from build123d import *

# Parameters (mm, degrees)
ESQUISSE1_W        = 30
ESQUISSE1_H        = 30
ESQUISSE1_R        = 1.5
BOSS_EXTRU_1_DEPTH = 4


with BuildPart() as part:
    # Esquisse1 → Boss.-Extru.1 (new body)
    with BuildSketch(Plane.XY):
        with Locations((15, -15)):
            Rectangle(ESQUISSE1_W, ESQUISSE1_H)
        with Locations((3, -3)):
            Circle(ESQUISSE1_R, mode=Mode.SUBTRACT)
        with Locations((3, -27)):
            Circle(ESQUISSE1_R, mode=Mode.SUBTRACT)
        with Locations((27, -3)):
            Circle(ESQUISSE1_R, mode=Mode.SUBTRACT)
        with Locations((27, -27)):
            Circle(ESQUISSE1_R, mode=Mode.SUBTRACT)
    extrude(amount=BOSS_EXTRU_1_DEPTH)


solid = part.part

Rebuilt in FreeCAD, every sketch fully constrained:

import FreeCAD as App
import Part
import Sketcher
from FreeCAD import Vector
Q = App.Units.Quantity


def add_polygon(sketch, points):
    """Adds a closed chain of lines whose ends are joined by coincident constraints."""
    first, n = sketch.GeometryCount, len(points)
    for a, b in zip(points, points[1:] + points[:1]):
        sketch.addGeometry(Part.LineSegment(App.Vector(*a, 0), App.Vector(*b, 0)), False)
    for i in range(n):
        sketch.addConstraint(Sketcher.Constraint("Coincident", first + i, 2, first + (i + 1) % n, 1))

doc = App.newDocument("Part")
params = doc.addObject("Spreadsheet::Sheet", "Params")
for row, (alias, value) in enumerate([
    ("sketch1_diameter", "3 mm"),
    ("sketch1_width", "30 mm"),
    ("pad1_length", "4 mm"),
], start=1):
    params.set(f"A{row}", alias)
    params.set(f"B{row}", "=" + value)
    params.setAlias(f"B{row}", alias)

body = doc.addObject("PartDesign::Body", "Body")

sketch1 = doc.addObject("Sketcher::SketchObject", "Sketch")
body.addObject(sketch1)
sketch1.AttachmentSupport = (doc.XY_Plane, [""])
sketch1.MapMode = "FlatFace"
add_polygon(sketch1, [(0, 0), (0, -30), (30, -30), (30, 0)])
sketch1.addGeometry(Part.Circle(Vector(3, -27, 0), Vector(0, 0, 1), 1.5), False)
sketch1.addGeometry(Part.Circle(Vector(27, -27, 0), Vector(0, 0, 1), 1.5), False)
sketch1.addGeometry(Part.Circle(Vector(3, -3, 0), Vector(0, 0, 1), 1.5), False)
sketch1.addGeometry(Part.Circle(Vector(27, -3, 0), Vector(0, 0, 1), 1.5), False)
sketch1.addConstraint([
    Sketcher.Constraint("Vertical", 0),
    Sketcher.Constraint("Horizontal", 1),
    Sketcher.Constraint("Vertical", 2),
    Sketcher.Constraint("Horizontal", 3),
    Sketcher.Constraint("Coincident", 3, 2, -1, 1),
    Sketcher.Constraint("Equal", 4, 5),
    Sketcher.Constraint("Equal", 5, 6),
    Sketcher.Constraint("Equal", 6, 7),
    Sketcher.Constraint("Horizontal", 4, 3, 5, 3),
    Sketcher.Constraint("Horizontal", 6, 3, 7, 3),
    Sketcher.Constraint("Vertical", 4, 3, 6, 3),
    Sketcher.Constraint("Vertical", 5, 3, 7, 3),
    Sketcher.Constraint("Equal", 3, 0),
    Sketcher.Constraint("Diameter", 4, Q("3 mm")),
    Sketcher.Constraint("DistanceX", 1, 1, 1, 2, Q("30 mm")),
    Sketcher.Constraint("DistanceX", -1, 1, 4, 3, Q("3 mm")),
    Sketcher.Constraint("DistanceY", 4, 3, -1, 1, Q("27 mm")),
    Sketcher.Constraint("DistanceX", -1, 1, 5, 3, Q("27 mm")),
    Sketcher.Constraint("DistanceY", 6, 3, -1, 1, Q("3 mm")),
])
sketch1.setExpression("Constraints[17]", "Params.sketch1_diameter")
sketch1.setExpression("Constraints[18]", "Params.sketch1_width")
pad1 = doc.addObject("PartDesign::Pad", "Pad")
body.addObject(pad1)
pad1.Profile = sketch1
pad1.setExpression("Length", "Params.pad1_length")

doc.recompute()
